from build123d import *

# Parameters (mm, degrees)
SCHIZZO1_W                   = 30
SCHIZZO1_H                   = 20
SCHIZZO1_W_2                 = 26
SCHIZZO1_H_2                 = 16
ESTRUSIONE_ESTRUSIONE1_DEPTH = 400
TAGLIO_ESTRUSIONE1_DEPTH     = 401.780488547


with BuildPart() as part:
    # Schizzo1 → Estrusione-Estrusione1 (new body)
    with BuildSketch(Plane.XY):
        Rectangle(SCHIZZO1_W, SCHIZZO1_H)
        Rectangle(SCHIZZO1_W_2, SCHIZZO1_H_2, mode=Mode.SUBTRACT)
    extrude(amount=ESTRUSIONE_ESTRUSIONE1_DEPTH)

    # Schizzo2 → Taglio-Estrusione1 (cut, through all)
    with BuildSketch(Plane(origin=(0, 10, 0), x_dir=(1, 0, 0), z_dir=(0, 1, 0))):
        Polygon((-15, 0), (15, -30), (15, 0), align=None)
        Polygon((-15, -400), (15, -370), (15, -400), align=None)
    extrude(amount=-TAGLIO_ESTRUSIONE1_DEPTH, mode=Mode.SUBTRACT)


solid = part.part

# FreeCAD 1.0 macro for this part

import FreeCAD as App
import Part
import Sketcher

V = App.Vector

doc = App.newDocument("Part")
params = doc.addObject("Spreadsheet::Sheet", "Params")
for row, (alias, value) in enumerate([
    ("sketch1_width", "30 mm"),
    ("sketch1_width2", "26 mm"),
    ("sketch1_height", "20 mm"),
    ("sketch1_height2", "16 mm"),
    ("pad1_length", "400 mm"),
    ("sketch2_width", "30 mm"),
], start=1):
    params.set(f"A{row}", alias)
    params.set(f"B{row}", "=" + value)
    params.setAlias(f"B{row}", alias)

body = doc.addObject("PartDesign::Body", "Body")

# Sketch on XY plane
sketch1 = doc.addObject("Sketcher::SketchObject", "Sketch")
body.addObject(sketch1)
sketch1.AttachmentSupport = (doc.XY_Plane, [""])
sketch1.MapMode = "FlatFace"
sketch1.addGeometry(Part.LineSegment(V(-15, 10, 0), V(-15, -10, 0)), False)
sketch1.addGeometry(Part.LineSegment(V(-15, -10, 0), V(15, -10, 0)), False)
sketch1.addGeometry(Part.LineSegment(V(15, -10, 0), V(15, 10, 0)), False)
sketch1.addGeometry(Part.LineSegment(V(15, 10, 0), V(-15, 10, 0)), False)
sketch1.addGeometry(Part.LineSegment(V(13, -8, 0), V(-13, -8, 0)), False)
sketch1.addGeometry(Part.LineSegment(V(-13, -8, 0), V(-13, 8, 0)), False)
sketch1.addGeometry(Part.LineSegment(V(-13, 8, 0), V(13, 8, 0)), False)
sketch1.addGeometry(Part.LineSegment(V(13, 8, 0), V(13, -8, 0)), False)
sketch1.addConstraint(Sketcher.Constraint("Coincident", 0, 2, 1, 1))
sketch1.addConstraint(Sketcher.Constraint("Coincident", 1, 2, 2, 1))
sketch1.addConstraint(Sketcher.Constraint("Coincident", 2, 2, 3, 1))
sketch1.addConstraint(Sketcher.Constraint("Coincident", 3, 2, 0, 1))
sketch1.addConstraint(Sketcher.Constraint("Coincident", 4, 2, 5, 1))
sketch1.addConstraint(Sketcher.Constraint("Coincident", 5, 2, 6, 1))
sketch1.addConstraint(Sketcher.Constraint("Coincident", 6, 2, 7, 1))
sketch1.addConstraint(Sketcher.Constraint("Coincident", 7, 2, 4, 1))
sketch1.addConstraint(Sketcher.Constraint("Vertical", 0))
sketch1.addConstraint(Sketcher.Constraint("Horizontal", 1))
sketch1.addConstraint(Sketcher.Constraint("Vertical", 2))
sketch1.addConstraint(Sketcher.Constraint("Horizontal", 3))
sketch1.addConstraint(Sketcher.Constraint("Horizontal", 4))
sketch1.addConstraint(Sketcher.Constraint("Vertical", 5))
sketch1.addConstraint(Sketcher.Constraint("Horizontal", 6))
sketch1.addConstraint(Sketcher.Constraint("Vertical", 7))
sketch1.addConstraint(Sketcher.Constraint("Symmetric", 0, 2, 2, 2, -1, 1))
sketch1.addConstraint(Sketcher.Constraint("Symmetric", 4, 2, 6, 2, -1, 1))
sketch1.addConstraint(Sketcher.Constraint("DistanceX", 1, 1, 1, 2, 30.0))
sketch1.addConstraint(Sketcher.Constraint("DistanceX", 4, 2, 4, 1, 26.0))
sketch1.addConstraint(Sketcher.Constraint("DistanceY", 0, 2, 0, 1, 20.0))
sketch1.addConstraint(Sketcher.Constraint("DistanceY", 5, 1, 5, 2, 16.0))
sketch1.setExpression("Constraints[18]", "Params.sketch1_width")
sketch1.setExpression("Constraints[19]", "Params.sketch1_width2")
sketch1.setExpression("Constraints[20]", "Params.sketch1_height")
sketch1.setExpression("Constraints[21]", "Params.sketch1_height2")
pad1 = doc.addObject("PartDesign::Pad", "Pad")
body.addObject(pad1)
pad1.Profile = sketch1
pad1.setExpression("Length", "Params.pad1_length")

# Sketch on XZ plane
sketch2 = doc.addObject("Sketcher::SketchObject", "Sketch001")
body.addObject(sketch2)
sketch2.AttachmentSupport = (doc.XZ_Plane, [""])
sketch2.MapMode = "FlatFace"
sketch2.AttachmentOffset = App.Placement(V(0, 0, -10), App.Rotation())
sketch2.addGeometry(Part.LineSegment(V(-15, 0, 0), V(15, 30, 0)), False)
sketch2.addGeometry(Part.LineSegment(V(15, 30, 0), V(15, 0, 0)), False)
sketch2.addGeometry(Part.LineSegment(V(15, 0, 0), V(-15, 0, 0)), False)
sketch2.addGeometry(Part.LineSegment(V(15, 370, 0), V(-15, 400, 0)), False)
sketch2.addGeometry(Part.LineSegment(V(-15, 400, 0), V(15, 400, 0)), False)
sketch2.addGeometry(Part.LineSegment(V(15, 400, 0), V(15, 370, 0)), False)
sketch2.addConstraint(Sketcher.Constraint("Coincident", 0, 2, 1, 1))
sketch2.addConstraint(Sketcher.Constraint("Coincident", 1, 2, 2, 1))
sketch2.addConstraint(Sketcher.Constraint("Coincident", 2, 2, 0, 1))
sketch2.addConstraint(Sketcher.Constraint("Coincident", 3, 2, 4, 1))
sketch2.addConstraint(Sketcher.Constraint("Coincident", 4, 2, 5, 1))
sketch2.addConstraint(Sketcher.Constraint("Coincident", 5, 2, 3, 1))
sketch2.addConstraint(Sketcher.Constraint("Vertical", 1))
sketch2.addConstraint(Sketcher.Constraint("Horizontal", 2))
sketch2.addConstraint(Sketcher.Constraint("Horizontal", 4))
sketch2.addConstraint(Sketcher.Constraint("Vertical", 5))
sketch2.addConstraint(Sketcher.Constraint("Symmetric", 1, 2, 2, 2, -1, 1))
sketch2.addConstraint(Sketcher.Constraint("Perpendicular", 0, 3))
sketch2.addConstraint(Sketcher.Constraint("Vertical", 2, 2, 3, 2))
sketch2.addConstraint(Sketcher.Constraint("Vertical", 1, 2, 4, 2))
sketch2.addConstraint(Sketcher.Constraint("Equal", 4, 1))
sketch2.addConstraint(Sketcher.Constraint("DistanceX", 2, 2, 2, 1, 30.0))
sketch2.addConstraint(Sketcher.Constraint("DistanceY", -1, 1, 3, 2, 400.0))
sketch2.setExpression("Constraints[15]", "Params.sketch2_width")
pocket1 = doc.addObject("PartDesign::Pocket", "Pocket")
body.addObject(pocket1)
pocket1.Profile = sketch2
pocket1.Type = "ThroughAll"
pocket1.Reversed = True

doc.recompute()
